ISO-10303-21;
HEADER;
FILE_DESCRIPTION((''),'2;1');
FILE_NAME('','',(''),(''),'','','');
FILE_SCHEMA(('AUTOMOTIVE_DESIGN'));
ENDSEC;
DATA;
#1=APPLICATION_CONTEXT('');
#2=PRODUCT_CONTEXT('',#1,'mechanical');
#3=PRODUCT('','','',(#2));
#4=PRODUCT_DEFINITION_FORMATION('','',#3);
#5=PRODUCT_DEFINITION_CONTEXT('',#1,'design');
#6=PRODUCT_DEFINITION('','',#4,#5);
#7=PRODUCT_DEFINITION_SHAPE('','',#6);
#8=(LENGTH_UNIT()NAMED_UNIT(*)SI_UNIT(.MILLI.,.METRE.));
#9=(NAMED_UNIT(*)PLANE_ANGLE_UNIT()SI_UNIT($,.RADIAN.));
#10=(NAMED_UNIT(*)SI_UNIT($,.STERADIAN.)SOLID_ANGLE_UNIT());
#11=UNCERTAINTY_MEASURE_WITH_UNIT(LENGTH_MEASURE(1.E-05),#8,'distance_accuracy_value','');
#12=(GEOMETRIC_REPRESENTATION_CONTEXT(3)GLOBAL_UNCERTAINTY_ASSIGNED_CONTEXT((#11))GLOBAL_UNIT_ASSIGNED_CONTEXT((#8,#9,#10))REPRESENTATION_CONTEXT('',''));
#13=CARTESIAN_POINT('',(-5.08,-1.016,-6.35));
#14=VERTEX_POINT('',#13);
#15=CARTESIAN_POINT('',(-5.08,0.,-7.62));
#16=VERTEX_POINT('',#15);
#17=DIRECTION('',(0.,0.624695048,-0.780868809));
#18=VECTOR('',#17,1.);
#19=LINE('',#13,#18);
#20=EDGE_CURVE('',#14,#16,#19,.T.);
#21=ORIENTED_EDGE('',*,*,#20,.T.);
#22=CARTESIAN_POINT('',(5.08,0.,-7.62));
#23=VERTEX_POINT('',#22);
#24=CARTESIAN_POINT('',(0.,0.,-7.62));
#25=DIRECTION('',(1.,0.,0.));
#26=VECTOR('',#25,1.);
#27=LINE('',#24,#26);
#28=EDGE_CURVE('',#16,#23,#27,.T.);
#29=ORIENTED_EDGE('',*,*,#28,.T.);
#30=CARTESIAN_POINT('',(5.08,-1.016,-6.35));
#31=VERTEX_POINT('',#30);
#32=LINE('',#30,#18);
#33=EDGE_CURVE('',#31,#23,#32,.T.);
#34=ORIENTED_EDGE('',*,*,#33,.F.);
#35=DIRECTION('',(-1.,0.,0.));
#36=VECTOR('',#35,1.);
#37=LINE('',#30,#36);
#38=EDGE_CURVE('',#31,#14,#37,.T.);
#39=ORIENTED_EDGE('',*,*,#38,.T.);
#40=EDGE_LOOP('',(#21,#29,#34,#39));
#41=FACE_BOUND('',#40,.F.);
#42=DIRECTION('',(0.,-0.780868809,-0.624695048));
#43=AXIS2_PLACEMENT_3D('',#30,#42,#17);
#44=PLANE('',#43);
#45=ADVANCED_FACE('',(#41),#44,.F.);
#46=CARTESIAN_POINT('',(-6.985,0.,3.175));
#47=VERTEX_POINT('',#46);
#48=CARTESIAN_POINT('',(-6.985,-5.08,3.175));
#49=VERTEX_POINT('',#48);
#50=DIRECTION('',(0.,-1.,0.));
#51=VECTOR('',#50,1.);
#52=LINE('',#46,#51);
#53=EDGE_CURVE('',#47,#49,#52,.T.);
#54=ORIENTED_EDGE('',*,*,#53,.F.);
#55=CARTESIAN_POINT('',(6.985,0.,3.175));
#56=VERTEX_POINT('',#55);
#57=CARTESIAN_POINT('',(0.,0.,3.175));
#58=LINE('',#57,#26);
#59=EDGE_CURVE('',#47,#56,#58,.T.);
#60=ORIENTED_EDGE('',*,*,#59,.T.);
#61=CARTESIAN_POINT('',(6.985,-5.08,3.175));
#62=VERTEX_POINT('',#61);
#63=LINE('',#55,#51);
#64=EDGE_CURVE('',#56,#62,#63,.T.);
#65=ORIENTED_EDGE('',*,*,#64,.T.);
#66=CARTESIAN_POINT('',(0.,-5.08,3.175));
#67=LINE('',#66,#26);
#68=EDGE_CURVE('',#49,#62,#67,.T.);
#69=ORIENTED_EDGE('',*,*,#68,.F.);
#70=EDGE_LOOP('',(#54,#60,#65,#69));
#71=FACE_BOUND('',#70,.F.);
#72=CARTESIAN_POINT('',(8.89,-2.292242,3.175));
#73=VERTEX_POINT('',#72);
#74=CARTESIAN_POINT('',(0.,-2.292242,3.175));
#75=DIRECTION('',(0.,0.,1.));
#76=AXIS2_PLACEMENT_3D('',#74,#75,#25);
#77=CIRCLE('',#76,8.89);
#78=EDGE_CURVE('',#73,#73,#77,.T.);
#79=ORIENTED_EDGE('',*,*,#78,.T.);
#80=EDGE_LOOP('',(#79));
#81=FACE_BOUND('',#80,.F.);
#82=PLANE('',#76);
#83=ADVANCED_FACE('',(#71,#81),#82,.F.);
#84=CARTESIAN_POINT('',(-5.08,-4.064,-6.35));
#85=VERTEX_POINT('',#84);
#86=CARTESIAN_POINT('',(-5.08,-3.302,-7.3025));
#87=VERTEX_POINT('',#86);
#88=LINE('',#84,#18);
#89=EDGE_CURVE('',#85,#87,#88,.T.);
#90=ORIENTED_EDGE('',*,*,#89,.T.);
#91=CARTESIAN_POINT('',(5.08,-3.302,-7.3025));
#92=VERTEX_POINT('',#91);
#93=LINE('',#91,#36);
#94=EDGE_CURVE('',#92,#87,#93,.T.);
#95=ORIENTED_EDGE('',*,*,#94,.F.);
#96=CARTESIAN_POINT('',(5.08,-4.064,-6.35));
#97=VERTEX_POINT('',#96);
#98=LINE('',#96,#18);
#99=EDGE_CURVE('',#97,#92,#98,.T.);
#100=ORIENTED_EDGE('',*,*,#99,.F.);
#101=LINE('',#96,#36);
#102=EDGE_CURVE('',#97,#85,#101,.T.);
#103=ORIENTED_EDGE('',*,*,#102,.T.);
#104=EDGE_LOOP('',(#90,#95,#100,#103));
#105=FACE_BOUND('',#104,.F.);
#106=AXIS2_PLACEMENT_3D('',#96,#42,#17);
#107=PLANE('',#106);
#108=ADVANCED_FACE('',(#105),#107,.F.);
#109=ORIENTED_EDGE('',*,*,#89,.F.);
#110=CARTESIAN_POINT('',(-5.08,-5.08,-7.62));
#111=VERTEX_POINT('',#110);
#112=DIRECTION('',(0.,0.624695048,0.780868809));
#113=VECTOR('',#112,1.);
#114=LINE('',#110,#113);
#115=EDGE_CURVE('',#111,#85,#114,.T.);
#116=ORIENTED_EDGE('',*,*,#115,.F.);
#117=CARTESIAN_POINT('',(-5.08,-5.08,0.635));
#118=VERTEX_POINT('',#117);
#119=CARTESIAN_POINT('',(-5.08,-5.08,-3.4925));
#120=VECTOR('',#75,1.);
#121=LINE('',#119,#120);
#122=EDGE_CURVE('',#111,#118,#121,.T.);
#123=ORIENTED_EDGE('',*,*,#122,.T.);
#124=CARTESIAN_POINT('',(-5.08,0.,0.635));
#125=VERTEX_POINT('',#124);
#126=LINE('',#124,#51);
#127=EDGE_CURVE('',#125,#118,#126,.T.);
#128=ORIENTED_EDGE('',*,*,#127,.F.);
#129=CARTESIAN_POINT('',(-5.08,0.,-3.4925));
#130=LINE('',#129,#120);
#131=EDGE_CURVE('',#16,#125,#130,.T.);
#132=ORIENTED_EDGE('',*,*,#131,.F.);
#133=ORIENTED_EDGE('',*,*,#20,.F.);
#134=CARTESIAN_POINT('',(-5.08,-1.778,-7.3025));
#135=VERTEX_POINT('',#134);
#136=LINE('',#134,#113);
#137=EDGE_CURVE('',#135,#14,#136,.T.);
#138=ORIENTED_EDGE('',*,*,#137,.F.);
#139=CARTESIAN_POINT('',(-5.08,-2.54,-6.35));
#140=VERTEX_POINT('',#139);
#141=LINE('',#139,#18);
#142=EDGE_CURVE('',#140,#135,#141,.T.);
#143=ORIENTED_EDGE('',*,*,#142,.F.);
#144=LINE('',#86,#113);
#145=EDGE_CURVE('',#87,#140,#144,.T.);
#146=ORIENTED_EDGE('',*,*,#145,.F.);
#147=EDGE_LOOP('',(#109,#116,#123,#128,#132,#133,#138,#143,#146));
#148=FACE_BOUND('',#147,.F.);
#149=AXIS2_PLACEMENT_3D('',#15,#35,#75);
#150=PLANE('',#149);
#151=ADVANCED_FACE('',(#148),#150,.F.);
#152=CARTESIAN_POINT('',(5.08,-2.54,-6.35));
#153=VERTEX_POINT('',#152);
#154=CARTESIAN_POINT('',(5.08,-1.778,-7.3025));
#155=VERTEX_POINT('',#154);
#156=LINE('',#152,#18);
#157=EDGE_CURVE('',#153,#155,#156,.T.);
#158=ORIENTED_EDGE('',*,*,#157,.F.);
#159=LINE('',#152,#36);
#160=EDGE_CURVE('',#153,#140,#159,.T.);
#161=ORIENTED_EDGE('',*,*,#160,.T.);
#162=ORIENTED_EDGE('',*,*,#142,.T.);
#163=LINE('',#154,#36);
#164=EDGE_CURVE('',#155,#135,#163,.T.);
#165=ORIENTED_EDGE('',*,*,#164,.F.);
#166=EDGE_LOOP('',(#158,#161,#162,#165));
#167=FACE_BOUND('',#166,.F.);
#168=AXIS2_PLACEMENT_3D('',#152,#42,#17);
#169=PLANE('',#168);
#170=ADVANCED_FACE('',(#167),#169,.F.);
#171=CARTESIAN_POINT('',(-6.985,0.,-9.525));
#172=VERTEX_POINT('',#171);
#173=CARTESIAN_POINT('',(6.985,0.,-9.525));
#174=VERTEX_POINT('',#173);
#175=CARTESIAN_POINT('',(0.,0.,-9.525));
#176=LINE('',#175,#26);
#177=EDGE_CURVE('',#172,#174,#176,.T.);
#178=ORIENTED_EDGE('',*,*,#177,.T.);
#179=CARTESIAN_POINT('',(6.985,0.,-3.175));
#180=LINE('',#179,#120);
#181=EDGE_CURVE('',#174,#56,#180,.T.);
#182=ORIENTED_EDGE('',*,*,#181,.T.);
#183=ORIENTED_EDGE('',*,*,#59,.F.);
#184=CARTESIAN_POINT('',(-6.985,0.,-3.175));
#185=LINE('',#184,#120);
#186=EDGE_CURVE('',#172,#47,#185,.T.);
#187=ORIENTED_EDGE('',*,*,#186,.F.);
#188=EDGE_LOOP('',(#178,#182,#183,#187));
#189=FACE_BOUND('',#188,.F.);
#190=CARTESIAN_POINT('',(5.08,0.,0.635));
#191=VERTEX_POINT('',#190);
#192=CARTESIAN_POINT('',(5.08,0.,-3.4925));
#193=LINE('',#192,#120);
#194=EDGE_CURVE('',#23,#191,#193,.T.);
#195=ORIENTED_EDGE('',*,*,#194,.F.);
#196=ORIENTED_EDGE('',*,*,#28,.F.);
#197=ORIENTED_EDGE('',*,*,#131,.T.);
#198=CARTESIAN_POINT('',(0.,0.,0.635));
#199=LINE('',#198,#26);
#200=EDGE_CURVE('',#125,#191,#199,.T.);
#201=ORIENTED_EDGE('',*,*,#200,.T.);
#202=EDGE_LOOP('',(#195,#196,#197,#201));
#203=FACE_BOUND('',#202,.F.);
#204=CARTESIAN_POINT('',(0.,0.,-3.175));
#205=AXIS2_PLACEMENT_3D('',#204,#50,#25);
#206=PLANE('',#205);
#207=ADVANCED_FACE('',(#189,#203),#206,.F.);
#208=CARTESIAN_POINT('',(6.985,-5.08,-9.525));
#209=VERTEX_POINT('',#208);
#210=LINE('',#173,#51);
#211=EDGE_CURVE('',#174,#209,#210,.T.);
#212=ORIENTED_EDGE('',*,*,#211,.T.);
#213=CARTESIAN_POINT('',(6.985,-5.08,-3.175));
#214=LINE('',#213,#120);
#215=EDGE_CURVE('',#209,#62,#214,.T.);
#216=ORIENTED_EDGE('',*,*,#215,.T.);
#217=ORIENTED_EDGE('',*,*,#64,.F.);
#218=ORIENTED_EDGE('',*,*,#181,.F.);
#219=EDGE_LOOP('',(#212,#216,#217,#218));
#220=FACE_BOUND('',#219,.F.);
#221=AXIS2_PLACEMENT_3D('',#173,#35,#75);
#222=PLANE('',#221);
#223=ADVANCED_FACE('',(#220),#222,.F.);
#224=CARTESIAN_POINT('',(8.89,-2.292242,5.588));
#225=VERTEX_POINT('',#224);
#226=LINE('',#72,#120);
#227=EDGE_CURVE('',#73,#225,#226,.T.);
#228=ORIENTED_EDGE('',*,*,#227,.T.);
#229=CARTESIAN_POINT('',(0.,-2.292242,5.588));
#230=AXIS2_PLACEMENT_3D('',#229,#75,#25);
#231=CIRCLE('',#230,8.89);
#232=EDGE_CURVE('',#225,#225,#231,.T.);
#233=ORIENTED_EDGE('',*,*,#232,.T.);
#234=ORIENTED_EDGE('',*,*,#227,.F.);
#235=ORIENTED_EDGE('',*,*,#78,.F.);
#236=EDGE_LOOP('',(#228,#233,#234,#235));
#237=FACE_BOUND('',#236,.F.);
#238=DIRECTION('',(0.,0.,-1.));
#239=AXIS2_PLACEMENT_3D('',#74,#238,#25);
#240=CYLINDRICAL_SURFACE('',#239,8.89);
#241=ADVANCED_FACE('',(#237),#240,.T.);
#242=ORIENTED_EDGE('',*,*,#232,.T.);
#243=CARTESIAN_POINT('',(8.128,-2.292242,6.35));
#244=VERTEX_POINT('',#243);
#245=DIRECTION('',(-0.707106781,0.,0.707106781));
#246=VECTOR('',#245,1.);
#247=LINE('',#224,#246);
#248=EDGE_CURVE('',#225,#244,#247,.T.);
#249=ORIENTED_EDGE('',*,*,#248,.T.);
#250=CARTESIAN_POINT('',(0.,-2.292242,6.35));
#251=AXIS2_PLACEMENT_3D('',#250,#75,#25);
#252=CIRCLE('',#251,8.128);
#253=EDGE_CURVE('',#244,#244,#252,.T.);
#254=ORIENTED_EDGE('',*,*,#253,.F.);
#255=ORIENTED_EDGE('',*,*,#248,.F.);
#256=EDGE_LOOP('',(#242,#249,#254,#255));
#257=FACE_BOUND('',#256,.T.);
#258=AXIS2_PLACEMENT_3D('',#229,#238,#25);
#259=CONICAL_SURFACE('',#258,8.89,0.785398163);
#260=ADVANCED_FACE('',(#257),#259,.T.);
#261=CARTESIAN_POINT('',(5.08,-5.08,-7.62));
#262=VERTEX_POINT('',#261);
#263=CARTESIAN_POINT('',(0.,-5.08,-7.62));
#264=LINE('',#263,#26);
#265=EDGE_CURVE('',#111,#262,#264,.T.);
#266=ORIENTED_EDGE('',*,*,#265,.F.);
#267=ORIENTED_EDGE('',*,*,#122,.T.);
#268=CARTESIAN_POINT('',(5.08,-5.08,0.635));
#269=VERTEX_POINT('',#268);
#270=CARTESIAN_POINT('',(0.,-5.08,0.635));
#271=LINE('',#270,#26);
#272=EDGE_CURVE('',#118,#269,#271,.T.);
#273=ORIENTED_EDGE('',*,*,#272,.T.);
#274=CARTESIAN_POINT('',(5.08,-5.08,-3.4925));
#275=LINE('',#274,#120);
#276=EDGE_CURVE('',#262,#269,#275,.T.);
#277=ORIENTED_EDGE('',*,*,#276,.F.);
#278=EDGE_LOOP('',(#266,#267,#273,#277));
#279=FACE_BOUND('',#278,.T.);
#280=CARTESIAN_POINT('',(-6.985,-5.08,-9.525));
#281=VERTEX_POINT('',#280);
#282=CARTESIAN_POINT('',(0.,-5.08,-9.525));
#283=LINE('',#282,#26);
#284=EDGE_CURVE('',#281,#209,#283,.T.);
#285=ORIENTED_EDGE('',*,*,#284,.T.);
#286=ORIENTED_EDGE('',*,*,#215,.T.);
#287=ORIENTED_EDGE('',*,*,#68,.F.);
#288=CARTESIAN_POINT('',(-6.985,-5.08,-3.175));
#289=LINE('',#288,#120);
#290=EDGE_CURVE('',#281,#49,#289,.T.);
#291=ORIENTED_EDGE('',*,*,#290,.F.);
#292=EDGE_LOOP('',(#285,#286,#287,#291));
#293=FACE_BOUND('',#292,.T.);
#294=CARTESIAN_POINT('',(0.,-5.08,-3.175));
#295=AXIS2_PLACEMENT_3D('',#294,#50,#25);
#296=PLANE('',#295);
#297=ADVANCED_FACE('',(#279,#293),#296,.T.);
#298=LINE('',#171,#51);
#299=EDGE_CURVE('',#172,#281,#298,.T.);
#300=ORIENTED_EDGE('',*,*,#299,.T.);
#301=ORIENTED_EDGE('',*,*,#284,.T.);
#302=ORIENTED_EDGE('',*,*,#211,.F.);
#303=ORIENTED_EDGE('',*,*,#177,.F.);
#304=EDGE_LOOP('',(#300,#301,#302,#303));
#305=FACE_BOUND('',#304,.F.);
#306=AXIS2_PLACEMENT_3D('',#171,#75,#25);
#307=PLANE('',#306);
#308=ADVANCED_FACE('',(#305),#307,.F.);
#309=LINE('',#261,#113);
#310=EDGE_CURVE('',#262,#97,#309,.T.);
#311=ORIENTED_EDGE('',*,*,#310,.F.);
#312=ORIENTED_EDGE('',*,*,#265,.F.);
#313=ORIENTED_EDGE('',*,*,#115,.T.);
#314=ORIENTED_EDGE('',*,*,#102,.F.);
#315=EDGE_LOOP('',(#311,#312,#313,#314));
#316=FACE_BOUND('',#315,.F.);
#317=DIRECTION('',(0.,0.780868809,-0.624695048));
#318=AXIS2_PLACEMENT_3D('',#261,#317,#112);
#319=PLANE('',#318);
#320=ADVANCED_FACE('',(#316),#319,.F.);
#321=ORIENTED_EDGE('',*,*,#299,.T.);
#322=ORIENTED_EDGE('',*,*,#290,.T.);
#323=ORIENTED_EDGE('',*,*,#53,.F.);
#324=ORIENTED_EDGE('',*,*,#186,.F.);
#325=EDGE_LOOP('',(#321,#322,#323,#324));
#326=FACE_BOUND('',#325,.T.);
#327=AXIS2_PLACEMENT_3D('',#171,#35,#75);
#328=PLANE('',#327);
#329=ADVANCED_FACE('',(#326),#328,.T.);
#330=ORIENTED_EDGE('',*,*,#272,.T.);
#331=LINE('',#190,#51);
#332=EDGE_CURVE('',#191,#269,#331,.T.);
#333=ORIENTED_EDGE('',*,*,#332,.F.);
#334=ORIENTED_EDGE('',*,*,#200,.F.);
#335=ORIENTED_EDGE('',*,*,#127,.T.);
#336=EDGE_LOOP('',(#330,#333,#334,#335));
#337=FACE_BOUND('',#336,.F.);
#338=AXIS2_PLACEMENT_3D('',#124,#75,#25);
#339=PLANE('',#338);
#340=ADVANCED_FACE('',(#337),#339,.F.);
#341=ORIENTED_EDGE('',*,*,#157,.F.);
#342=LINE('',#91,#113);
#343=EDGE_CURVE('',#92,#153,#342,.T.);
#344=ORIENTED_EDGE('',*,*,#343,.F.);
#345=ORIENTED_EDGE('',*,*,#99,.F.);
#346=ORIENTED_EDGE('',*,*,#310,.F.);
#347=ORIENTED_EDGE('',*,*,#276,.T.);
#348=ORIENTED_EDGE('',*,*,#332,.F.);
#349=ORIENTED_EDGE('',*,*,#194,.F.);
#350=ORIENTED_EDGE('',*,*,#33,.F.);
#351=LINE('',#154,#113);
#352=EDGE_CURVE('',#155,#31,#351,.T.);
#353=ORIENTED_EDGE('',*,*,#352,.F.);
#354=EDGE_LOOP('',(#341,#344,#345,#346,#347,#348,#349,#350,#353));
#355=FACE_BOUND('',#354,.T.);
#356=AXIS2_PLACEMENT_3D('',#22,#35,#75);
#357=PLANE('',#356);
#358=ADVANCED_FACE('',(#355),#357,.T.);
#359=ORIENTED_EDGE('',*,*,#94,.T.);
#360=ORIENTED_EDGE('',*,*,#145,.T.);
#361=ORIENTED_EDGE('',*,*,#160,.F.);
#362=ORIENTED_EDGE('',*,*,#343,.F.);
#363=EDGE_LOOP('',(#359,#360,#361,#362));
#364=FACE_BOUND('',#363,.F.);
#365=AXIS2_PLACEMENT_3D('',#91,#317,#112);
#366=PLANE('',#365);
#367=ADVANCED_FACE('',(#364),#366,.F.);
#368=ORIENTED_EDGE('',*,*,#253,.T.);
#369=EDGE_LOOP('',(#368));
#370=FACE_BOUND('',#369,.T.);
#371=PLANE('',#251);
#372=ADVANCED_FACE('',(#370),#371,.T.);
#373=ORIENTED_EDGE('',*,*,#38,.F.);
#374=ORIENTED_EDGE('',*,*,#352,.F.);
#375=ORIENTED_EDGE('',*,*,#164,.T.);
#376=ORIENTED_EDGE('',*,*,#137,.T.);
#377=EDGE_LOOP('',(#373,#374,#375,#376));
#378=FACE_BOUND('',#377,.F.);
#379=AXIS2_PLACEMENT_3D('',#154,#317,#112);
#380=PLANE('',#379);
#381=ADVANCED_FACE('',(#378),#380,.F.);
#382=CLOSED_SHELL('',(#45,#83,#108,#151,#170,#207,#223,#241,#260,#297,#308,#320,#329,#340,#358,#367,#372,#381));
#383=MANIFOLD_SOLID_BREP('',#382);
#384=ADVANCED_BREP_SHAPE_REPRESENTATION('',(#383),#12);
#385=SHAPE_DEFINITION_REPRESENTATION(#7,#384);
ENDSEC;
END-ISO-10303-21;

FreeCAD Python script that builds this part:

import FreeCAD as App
import Part
import Sketcher

V = App.Vector
Q = App.Units.Quantity


def edges_at(feature, points):
    """Names of the edges that pass closest to the given points."""
    edges = feature.Shape.Edges
    near = lambda p: min(range(len(edges)), key=lambda i: edges[i].distToShape(Part.Vertex(*p))[0])
    return sorted({f"Edge{near(p) + 1}" for p in points})

doc = App.newDocument("Part")
params = doc.addObject("Spreadsheet::Sheet", "Params")
for row, (alias, value) in enumerate([
    ("sketch1_width", "0.4 in"),
    ("sketch1_height", "0.5 in"),
    ("sketch1_width2", "0.55 in"),
    ("sketch1_height2", "0.325 in"),
    ("pad1_length", "0.2 in"),
    ("sketch2_diameter", "0.7 in"),
    ("pad2_length", "0.125 in"),
    ("chamfer_size", "0.03 in"),
    ("sketch3_width", "0.2 in"),
    ("pad3_length", "0.4 in"),
], start=1):
    params.set(f"A{row}", alias)
    params.set(f"B{row}", "=" + value)
    params.setAlias(f"B{row}", alias)

body = doc.addObject("PartDesign::Body", "Body")

# Sketch on XZ plane
sketch1 = doc.addObject("Sketcher::SketchObject", "Sketch")
body.addObject(sketch1)
sketch1.AttachmentSupport = (doc.XZ_Plane, [""])
sketch1.MapMode = "FlatFace"
sketch1.addGeometry(Part.LineSegment(V(-7, 3, 0), V(-7, -10, 0)), False)
sketch1.addGeometry(Part.LineSegment(V(-7, -10, 0), V(7, -10, 0)), False)
sketch1.addGeometry(Part.LineSegment(V(7, -10, 0), V(7, 3, 0)), False)
sketch1.addGeometry(Part.LineSegment(V(7, 3, 0), V(-7, 3, 0)), False)
sketch1.addGeometry(Part.LineSegment(V(5, -8, 0), V(-5, -8, 0)), False)
sketch1.addGeometry(Part.LineSegment(V(-5, -8, 0), V(-5, 1, 0)), False)
sketch1.addGeometry(Part.LineSegment(V(-5, 1, 0), V(5, 1, 0)), False)
sketch1.addGeometry(Part.LineSegment(V(5, 1, 0), V(5, -8, 0)), False)
sketch1.addConstraint(Sketcher.Constraint("Coincident", 0, 2, 1, 1))
sketch1.addConstraint(Sketcher.Constraint("Coincident", 1, 2, 2, 1))
sketch1.addConstraint(Sketcher.Constraint("Coincident", 2, 2, 3, 1))
sketch1.addConstraint(Sketcher.Constraint("Coincident", 3, 2, 0, 1))
sketch1.addConstraint(Sketcher.Constraint("Coincident", 4, 2, 5, 1))
sketch1.addConstraint(Sketcher.Constraint("Coincident", 5, 2, 6, 1))
sketch1.addConstraint(Sketcher.Constraint("Coincident", 6, 2, 7, 1))
sketch1.addConstraint(Sketcher.Constraint("Coincident", 7, 2, 4, 1))
sketch1.addConstraint(Sketcher.Constraint("Vertical", 0))
sketch1.addConstraint(Sketcher.Constraint("Horizontal", 1))
sketch1.addConstraint(Sketcher.Constraint("Vertical", 2))
sketch1.addConstraint(Sketcher.Constraint("Horizontal", 3))
sketch1.addConstraint(Sketcher.Constraint("Horizontal", 4))
sketch1.addConstraint(Sketcher.Constraint("Vertical", 5))
sketch1.addConstraint(Sketcher.Constraint("Horizontal", 6))
sketch1.addConstraint(Sketcher.Constraint("Vertical", 7))
sketch1.addConstraint(Sketcher.Constraint("DistanceX", 4, 2, 4, 1, Q("0.4 in")))
sketch1.addConstraint(Sketcher.Constraint("DistanceY", 0, 2, 0, 1, Q("0.5 in")))
sketch1.addConstraint(Sketcher.Constraint("DistanceX", 1, 1, 1, 2, Q("0.55 in")))
sketch1.addConstraint(Sketcher.Constraint("DistanceX", 4, 2, -1, 1, Q("0.2 in")))
sketch1.addConstraint(Sketcher.Constraint("DistanceY", 4, 2, -1, 1, Q("0.3 in")))
sketch1.addConstraint(Sketcher.Constraint("DistanceY", 5, 2, 3, 2, Q("0.1 in")))
sketch1.addConstraint(Sketcher.Constraint("DistanceY", 5, 1, 5, 2, Q("0.325 in")))
sketch1.addConstraint(Sketcher.Constraint("DistanceX", 0, 2, -1, 1, Q("0.275 in")))
sketch1.setExpression("Constraints[16]", "Params.sketch1_width")
sketch1.setExpression("Constraints[17]", "Params.sketch1_height")
sketch1.setExpression("Constraints[18]", "Params.sketch1_width2")
sketch1.setExpression("Constraints[22]", "Params.sketch1_height2")
pad1 = doc.addObject("PartDesign::Pad", "Pad")
body.addObject(pad1)
pad1.Profile = sketch1
pad1.setExpression("Length", "Params.pad1_length")

# Sketch on XY plane
sketch2 = doc.addObject("Sketcher::SketchObject", "Sketch001")
body.addObject(sketch2)
sketch2.AttachmentSupport = (doc.XY_Plane, [""])
sketch2.MapMode = "FlatFace"
sketch2.AttachmentOffset = App.Placement(V(0, 0, 0.125 * 25.4), App.Rotation())
sketch2.addGeometry(Part.Circle(V(0, -2, 0), V(0, 0, 1), 9), False)
sketch2.addConstraint(Sketcher.Constraint("PointOnObject", 0, 3, -2))
sketch2.addConstraint(Sketcher.Constraint("Diameter", 0, Q("0.7 in")))
sketch2.addConstraint(Sketcher.Constraint("DistanceY", 0, 3, -1, 1, 2.292242))
sketch2.setExpression("Constraints[1]", "Params.sketch2_diameter")
pad2 = doc.addObject("PartDesign::Pad", "Pad001")
body.addObject(pad2)
pad2.Profile = sketch2
pad2.setExpression("Length", "Params.pad2_length")
doc.recompute()

chamfer = doc.addObject("PartDesign::Chamfer", "Chamfer")
body.addObject(chamfer)
chamfer.Base = (pad2, edges_at(pad2, [(-8.89, -2.292, 6.35)]))
chamfer.setExpression("Size", "Params.chamfer_size")

# Sketch on YZ plane
sketch3 = doc.addObject("Sketcher::SketchObject", "Sketch002")
body.addObject(sketch3)
sketch3.AttachmentSupport = (doc.YZ_Plane, [""])
sketch3.MapMode = "FlatFace"
sketch3.AttachmentOffset = App.Placement(V(0, 0, 0.2 * 25.4), App.Rotation())
sketch3.addGeometry(Part.LineSegment(V(0, -7.6, 0), V(-5.1, -7.6, 0)), False)
sketch3.addGeometry(Part.LineSegment(V(-5.1, -7.6, 0), V(-4.1, -6.3, 0)), False)
sketch3.addGeometry(Part.LineSegment(V(-4.1, -6.3, 0), V(-3.3, -7.3, 0)), False)
sketch3.addGeometry(Part.LineSegment(V(-3.3, -7.3, 0), V(-2.5, -6.3, 0)), False)
sketch3.addGeometry(Part.LineSegment(V(-2.5, -6.3, 0), V(-1.8, -7.3, 0)), False)
sketch3.addGeometry(Part.LineSegment(V(-1.8, -7.3, 0), V(-1, -6.3, 0)), False)
sketch3.addGeometry(Part.LineSegment(V(-1, -6.3, 0), V(0, -7.6, 0)), False)
sketch3.addConstraint(Sketcher.Constraint("Coincident", 0, 2, 1, 1))
sketch3.addConstraint(Sketcher.Constraint("Coincident", 1, 2, 2, 1))
sketch3.addConstraint(Sketcher.Constraint("Coincident", 2, 2, 3, 1))
sketch3.addConstraint(Sketcher.Constraint("Coincident", 3, 2, 4, 1))
sketch3.addConstraint(Sketcher.Constraint("Coincident", 4, 2, 5, 1))
sketch3.addConstraint(Sketcher.Constraint("Coincident", 5, 2, 6, 1))
sketch3.addConstraint(Sketcher.Constraint("Coincident", 6, 2, 0, 1))
sketch3.addConstraint(Sketcher.Constraint("Horizontal", 0))
sketch3.addConstraint(Sketcher.Constraint("PointOnObject", 6, 2, -2))
sketch3.addConstraint(Sketcher.Constraint("Parallel", 1, 3))
sketch3.addConstraint(Sketcher.Constraint("Parallel", 2, 4))
sketch3.addConstraint(Sketcher.Constraint("Parallel", 3, 5))
sketch3.addConstraint(Sketcher.Constraint("Parallel", 4, 6))
sketch3.addConstraint(Sketcher.Constraint("Horizontal", 1, 2, 3, 2))
sketch3.addConstraint(Sketcher.Constraint("Horizontal", 2, 2, 4, 2))
sketch3.addConstraint(Sketcher.Constraint("Horizontal", 3, 2, 5, 2))
sketch3.addConstraint(Sketcher.Constraint("Equal", 2, 3))
sketch3.addConstraint(Sketcher.Constraint("DistanceX", 0, 2, 0, 1, Q("0.2 in")))
sketch3.addConstraint(Sketcher.Constraint("DistanceY", 0, 2, -1, 1, Q("0.3 in")))
sketch3.addConstraint(Sketcher.Constraint("DistanceX", 1, 2, -1, 1, Q("0.16 in")))
sketch3.addConstraint(Sketcher.Constraint("DistanceY", 1, 2, -1, 1, Q("0.25 in")))
sketch3.setExpression("Constraints[17]", "Params.sketch3_width")
pad3 = doc.addObject("PartDesign::Pad", "Pad002")
body.addObject(pad3)
pad3.Profile = sketch3
pad3.setExpression("Length", "Params.pad3_length")
pad3.Reversed = True

doc.recompute()
